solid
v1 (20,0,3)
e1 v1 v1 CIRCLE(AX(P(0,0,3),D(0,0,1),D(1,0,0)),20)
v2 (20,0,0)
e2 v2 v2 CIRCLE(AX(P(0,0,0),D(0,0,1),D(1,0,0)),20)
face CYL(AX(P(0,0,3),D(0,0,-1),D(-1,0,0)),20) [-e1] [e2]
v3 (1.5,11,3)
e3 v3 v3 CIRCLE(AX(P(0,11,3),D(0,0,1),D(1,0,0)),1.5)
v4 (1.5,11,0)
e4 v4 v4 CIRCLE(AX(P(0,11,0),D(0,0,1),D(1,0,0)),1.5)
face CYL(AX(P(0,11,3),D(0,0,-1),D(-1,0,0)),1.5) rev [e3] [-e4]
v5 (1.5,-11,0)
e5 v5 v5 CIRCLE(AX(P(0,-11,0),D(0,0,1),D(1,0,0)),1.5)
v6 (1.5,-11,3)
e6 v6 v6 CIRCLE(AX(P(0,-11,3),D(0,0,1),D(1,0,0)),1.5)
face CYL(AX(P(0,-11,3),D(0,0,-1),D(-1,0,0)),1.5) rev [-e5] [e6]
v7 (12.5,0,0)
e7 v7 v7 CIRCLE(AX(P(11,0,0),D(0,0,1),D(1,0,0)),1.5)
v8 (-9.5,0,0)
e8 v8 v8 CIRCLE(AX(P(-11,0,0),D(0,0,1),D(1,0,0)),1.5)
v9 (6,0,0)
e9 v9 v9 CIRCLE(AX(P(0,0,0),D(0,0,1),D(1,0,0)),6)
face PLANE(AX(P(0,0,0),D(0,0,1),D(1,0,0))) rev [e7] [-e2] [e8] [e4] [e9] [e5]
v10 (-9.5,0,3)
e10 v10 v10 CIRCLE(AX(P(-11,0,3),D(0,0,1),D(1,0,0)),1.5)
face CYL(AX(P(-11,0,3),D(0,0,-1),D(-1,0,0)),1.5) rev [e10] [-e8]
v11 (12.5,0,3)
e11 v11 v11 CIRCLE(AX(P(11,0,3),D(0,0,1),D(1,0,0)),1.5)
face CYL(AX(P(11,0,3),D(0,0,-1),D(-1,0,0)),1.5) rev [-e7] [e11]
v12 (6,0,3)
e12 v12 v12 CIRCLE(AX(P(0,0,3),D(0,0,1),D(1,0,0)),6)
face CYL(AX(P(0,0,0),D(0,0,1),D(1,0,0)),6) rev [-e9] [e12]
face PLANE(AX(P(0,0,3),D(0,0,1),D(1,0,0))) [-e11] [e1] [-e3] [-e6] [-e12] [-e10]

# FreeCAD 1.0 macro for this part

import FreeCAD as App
import Part
import Sketcher
from FreeCAD import Vector

doc = App.newDocument("Part")
body = doc.addObject("PartDesign::Body", "Body")

sketch1 = body.newObject("Sketcher::SketchObject", "Sketch")
sketch1.AttachmentSupport = (doc.getObject("XY_Plane"), [""])
sketch1.MapMode = "FlatFace"
sketch1.addGeometry(Part.Circle(Vector(0, 0, 0), Vector(0, 0, 1), 20), False)
sketch1.addGeometry(Part.Circle(Vector(0, -11, 0), Vector(0, 0, 1), 1.5), False)
sketch1.addGeometry(Part.Circle(Vector(-11, 0, 0), Vector(0, 0, 1), 1.5), False)
sketch1.addGeometry(Part.Circle(Vector(11, 0, 0), Vector(0, 0, 1), 1.5), False)
sketch1.addGeometry(Part.Circle(Vector(0, 11, 0), Vector(0, 0, 1), 1.5), False)
sketch1.addConstraint(Sketcher.Constraint("Coincident", 0, 3, -1, 1))
sketch1.addConstraint(Sketcher.Constraint("Equal", 1, 2))
sketch1.addConstraint(Sketcher.Constraint("Equal", 2, 3))
sketch1.addConstraint(Sketcher.Constraint("Equal", 3, 4))
sketch1.addConstraint(Sketcher.Constraint("Symmetric", 2, 3, 3, 3, -1, 1))
sketch1.addConstraint(Sketcher.Constraint("Symmetric", 1, 3, 4, 3, -1, 1))
sketch1.addConstraint(Sketcher.Constraint("PointOnObject", 1, 3, -2))
sketch1.addConstraint(Sketcher.Constraint("PointOnObject", 2, 3, -1))
sketch1.addConstraint(Sketcher.Constraint("Diameter", 0, 40.0))
sketch1.addConstraint(Sketcher.Constraint("Diameter", 1, 3.0))
sketch1.addConstraint(Sketcher.Constraint("DistanceY", 1, 3, -1, 1, 11.0))
sketch1.addConstraint(Sketcher.Constraint("DistanceX", 2, 3, -1, 1, 11.0))
pad1 = body.newObject("PartDesign::Pad", "Pad")
pad1.Profile = sketch1
pad1.Length = 3

sketch2 = body.newObject("Sketcher::SketchObject", "Sketch001")
sketch2.AttachmentSupport = (doc.getObject("XY_Plane"), [""])
sketch2.MapMode = "FlatFace"
sketch2.AttachmentOffset = App.Placement(Vector(0, 0, 3), App.Rotation())
sketch2.addGeometry(Part.Circle(Vector(0, 0, 0), Vector(0, 0, 1), 6), False)
sketch2.addConstraint(Sketcher.Constraint("Coincident", 0, 3, -1, 1))
sketch2.addConstraint(Sketcher.Constraint("Diameter", 0, 12.0))
pocket1 = body.newObject("PartDesign::Pocket", "Pocket")
pocket1.Profile = sketch2
pocket1.Type = "ThroughAll"

doc.recompute()
